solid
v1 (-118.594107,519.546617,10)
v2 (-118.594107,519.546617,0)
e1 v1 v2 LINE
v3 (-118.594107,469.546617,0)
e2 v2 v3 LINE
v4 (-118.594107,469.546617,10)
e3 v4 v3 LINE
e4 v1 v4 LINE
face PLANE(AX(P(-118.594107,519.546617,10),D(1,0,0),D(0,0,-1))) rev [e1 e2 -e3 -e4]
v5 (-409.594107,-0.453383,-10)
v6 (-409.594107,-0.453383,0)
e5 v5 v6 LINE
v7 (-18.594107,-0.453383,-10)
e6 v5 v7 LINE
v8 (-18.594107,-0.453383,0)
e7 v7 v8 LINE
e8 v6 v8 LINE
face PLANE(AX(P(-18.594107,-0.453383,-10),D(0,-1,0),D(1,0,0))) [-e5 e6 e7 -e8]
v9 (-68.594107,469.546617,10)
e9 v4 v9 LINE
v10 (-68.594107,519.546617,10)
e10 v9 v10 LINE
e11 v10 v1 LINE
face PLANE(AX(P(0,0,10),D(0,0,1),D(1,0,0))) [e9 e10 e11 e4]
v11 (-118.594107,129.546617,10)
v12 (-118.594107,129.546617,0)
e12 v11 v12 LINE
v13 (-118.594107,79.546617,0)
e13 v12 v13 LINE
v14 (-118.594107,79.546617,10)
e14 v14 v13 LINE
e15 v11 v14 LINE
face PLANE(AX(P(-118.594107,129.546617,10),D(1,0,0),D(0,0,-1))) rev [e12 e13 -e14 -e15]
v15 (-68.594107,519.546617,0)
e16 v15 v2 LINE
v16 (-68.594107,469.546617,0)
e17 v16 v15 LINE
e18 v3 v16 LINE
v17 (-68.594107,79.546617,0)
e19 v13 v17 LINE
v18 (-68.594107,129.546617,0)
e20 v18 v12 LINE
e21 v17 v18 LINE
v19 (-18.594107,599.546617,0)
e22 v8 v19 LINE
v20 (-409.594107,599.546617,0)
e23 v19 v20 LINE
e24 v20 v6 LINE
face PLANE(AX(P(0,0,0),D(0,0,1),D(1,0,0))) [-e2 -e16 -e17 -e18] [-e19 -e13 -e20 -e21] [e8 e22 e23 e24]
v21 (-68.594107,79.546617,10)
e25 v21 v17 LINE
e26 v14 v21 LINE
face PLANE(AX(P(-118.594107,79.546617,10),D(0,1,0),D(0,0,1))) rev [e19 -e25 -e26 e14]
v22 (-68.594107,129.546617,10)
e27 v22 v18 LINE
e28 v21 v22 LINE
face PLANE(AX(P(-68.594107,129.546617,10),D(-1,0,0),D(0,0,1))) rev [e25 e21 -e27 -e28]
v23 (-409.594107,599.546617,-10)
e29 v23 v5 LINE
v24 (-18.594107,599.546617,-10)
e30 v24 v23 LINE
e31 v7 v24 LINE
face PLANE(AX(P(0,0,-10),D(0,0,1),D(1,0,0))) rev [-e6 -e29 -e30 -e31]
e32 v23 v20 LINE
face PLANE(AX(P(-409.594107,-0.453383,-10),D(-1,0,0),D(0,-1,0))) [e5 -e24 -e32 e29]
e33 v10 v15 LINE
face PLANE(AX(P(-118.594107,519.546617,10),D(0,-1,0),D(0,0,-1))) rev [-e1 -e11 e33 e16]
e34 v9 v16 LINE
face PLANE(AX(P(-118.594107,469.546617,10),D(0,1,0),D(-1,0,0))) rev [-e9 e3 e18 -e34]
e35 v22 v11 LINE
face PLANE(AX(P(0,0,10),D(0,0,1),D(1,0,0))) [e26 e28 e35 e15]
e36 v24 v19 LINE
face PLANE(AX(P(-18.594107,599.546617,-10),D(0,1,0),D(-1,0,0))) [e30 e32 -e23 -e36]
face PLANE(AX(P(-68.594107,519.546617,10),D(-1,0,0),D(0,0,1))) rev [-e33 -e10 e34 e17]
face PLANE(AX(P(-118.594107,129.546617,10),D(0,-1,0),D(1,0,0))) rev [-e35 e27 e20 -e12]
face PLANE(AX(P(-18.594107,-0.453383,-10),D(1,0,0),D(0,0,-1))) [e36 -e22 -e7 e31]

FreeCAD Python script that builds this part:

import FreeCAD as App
import Part
import Sketcher
Q = App.Units.Quantity


def add_polygon(sketch, points):
    """Adds a closed chain of lines whose ends are joined by coincident constraints."""
    first, n = sketch.GeometryCount, len(points)
    for a, b in zip(points, points[1:] + points[:1]):
        sketch.addGeometry(Part.LineSegment(App.Vector(*a, 0), App.Vector(*b, 0)), False)
    for i in range(n):
        sketch.addConstraint(Sketcher.Constraint("Coincident", first + i, 2, first + (i + 1) % n, 1))

doc = App.newDocument("Part")
body = doc.addObject("PartDesign::Body", "Body")

# Sketch on XY plane
sketch1 = body.newObject("Sketcher::SketchObject", "Sketch")
sketch1.AttachmentSupport = (doc.getObject("XY_Plane"), [""])
sketch1.MapMode = "FlatFace"
add_polygon(sketch1, [(-410, 600), (-410, 0), (-19, 0), (-19, 600)])  # lines 0-3
sketch1.addConstraint([
    Sketcher.Constraint("Vertical", 0),
    Sketcher.Constraint("Horizontal", 1),
    Sketcher.Constraint("Vertical", 2),
    Sketcher.Constraint("Horizontal", 3),
    Sketcher.Constraint("DistanceX", 1, 1, 1, 2, Q("391 mm")),
    Sketcher.Constraint("DistanceY", 0, 2, 0, 1, Q("600 mm")),
    Sketcher.Constraint("DistanceX", 0, 2, -1, 1, Q("409.594107 mm")),
    Sketcher.Constraint("DistanceY", 0, 2, -1, 1, Q("0.453383 mm")),
])
pad1 = body.newObject("PartDesign::Pad", "Pad")
pad1.Profile = sketch1
pad1.Length = 10
pad1.Reversed = True

# Sketch on XY plane
sketch2 = body.newObject("Sketcher::SketchObject", "Sketch001")
sketch2.AttachmentSupport = (doc.getObject("XY_Plane"), [""])
sketch2.MapMode = "FlatFace"
add_polygon(sketch2, [(-119, 520), (-119, 470), (-69, 470), (-69, 520)])  # lines 0-3
add_polygon(sketch2, [(-119, 130), (-119, 80), (-69, 80), (-69, 130)])  # lines 4-7
sketch2.addConstraint([
    Sketcher.Constraint("Vertical", 0),
    Sketcher.Constraint("Horizontal", 1),
    Sketcher.Constraint("Vertical", 2),
    Sketcher.Constraint("Horizontal", 3),
    Sketcher.Constraint("Vertical", 4),
    Sketcher.Constraint("Horizontal", 5),
    Sketcher.Constraint("Vertical", 6),
    Sketcher.Constraint("Horizontal", 7),
    Sketcher.Constraint("Vertical", 3, 2, 4, 2),
    Sketcher.Constraint("Vertical", 2, 2, 5, 2),
    Sketcher.Constraint("Equal", 7, 0),
    Sketcher.Constraint("Equal", 2, 4),
    Sketcher.Constraint("DistanceX", 1, 1, 1, 2, Q("50 mm")),
    Sketcher.Constraint("DistanceY", 4, 2, 0, 2, Q("390 mm")),
    Sketcher.Constraint("DistanceX", 0, 2, -1, 1, Q("118.594107 mm")),
    Sketcher.Constraint("DistanceY", -1, 1, 0, 2, Q("469.546617 mm")),
])
pad2 = body.newObject("PartDesign::Pad", "Pad001")
pad2.Profile = sketch2
pad2.Length = 10

doc.recompute()
